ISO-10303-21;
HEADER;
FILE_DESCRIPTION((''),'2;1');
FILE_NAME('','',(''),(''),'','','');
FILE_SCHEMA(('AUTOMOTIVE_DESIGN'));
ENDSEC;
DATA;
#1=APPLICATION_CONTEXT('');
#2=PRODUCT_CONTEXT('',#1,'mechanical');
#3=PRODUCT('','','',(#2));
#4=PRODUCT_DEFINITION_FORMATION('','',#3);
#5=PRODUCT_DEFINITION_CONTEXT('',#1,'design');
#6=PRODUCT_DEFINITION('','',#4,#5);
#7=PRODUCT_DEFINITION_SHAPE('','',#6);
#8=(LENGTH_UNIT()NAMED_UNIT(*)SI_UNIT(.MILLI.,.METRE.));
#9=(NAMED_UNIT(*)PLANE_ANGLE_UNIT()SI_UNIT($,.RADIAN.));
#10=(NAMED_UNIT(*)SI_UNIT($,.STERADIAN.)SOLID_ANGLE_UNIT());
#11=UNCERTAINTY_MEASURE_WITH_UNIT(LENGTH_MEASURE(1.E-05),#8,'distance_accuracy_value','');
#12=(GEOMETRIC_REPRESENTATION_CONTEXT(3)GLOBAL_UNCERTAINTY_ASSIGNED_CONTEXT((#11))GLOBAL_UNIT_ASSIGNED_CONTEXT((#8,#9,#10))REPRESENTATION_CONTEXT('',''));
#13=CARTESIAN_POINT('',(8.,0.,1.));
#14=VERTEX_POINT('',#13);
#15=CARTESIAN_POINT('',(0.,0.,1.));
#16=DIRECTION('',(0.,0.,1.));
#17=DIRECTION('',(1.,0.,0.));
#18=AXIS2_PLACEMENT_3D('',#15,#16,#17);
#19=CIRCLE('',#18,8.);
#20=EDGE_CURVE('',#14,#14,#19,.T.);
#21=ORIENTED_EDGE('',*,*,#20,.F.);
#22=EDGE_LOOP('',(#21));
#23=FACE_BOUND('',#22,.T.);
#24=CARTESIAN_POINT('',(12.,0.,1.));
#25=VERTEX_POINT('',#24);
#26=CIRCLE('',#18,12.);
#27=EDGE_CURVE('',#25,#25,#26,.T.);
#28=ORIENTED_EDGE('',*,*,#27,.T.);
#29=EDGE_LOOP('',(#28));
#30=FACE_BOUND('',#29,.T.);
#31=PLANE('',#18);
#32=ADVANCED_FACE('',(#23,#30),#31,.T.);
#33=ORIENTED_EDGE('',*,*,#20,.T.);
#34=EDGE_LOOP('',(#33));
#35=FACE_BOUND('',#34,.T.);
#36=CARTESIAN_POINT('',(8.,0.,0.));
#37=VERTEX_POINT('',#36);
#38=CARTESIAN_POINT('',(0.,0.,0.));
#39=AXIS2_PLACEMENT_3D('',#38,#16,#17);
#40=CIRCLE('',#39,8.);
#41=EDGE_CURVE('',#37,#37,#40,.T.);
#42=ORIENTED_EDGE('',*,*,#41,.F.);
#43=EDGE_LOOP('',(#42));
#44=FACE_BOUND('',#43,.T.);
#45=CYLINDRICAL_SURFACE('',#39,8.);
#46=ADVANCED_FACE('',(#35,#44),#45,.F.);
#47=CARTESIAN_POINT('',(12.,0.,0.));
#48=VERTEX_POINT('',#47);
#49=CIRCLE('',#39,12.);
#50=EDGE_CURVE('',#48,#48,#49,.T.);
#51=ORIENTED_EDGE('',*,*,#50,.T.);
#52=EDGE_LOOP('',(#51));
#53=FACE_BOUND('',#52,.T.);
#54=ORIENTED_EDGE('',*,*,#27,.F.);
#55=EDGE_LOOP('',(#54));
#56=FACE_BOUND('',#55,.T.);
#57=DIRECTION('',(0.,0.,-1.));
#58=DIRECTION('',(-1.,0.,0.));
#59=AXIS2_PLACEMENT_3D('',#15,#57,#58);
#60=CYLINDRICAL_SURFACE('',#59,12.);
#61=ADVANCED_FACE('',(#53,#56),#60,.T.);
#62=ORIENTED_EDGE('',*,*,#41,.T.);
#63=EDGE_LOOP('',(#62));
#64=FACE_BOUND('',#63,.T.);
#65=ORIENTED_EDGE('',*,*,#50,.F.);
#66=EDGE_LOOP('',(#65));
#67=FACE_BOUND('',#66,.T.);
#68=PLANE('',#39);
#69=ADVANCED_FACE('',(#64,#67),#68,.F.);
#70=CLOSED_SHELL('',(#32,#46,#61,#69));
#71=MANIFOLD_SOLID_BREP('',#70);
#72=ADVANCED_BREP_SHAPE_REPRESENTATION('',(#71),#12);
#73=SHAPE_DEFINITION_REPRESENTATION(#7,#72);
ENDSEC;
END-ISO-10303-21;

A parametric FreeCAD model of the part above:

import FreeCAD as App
import Part
import Sketcher

V = App.Vector

doc = App.newDocument("Part")
params = doc.addObject("Spreadsheet::Sheet", "Params")
for row, (alias, value) in enumerate([
    ("sketch1_diameter", "24 mm"),
    ("pad1_length", "1 mm"),
    ("sketch2_diameter", "16 mm"),
    ("pocket1_length", "1 mm"),
], start=1):
    params.set(f"A{row}", alias)
    params.set(f"B{row}", "=" + value)
    params.setAlias(f"B{row}", alias)

body = doc.addObject("PartDesign::Body", "Body")

sketch1 = body.newObject("Sketcher::SketchObject", "Sketch")
sketch1.AttachmentSupport = (doc.getObject("XY_Plane"), [""])
sketch1.MapMode = "FlatFace"
sketch1.addGeometry(Part.Circle(V(0, 0, 0), V(0, 0, 1), 12), False)
sketch1.addConstraint([
    Sketcher.Constraint("Coincident", 0, 3, -1, 1),
    Sketcher.Constraint("Diameter", 0, 24.0),
])
sketch1.setExpression("Constraints[1]", "Params.sketch1_diameter")
pad1 = body.newObject("PartDesign::Pad", "Pad")
pad1.Profile = sketch1
pad1.setExpression("Length", "Params.pad1_length")

sketch2 = body.newObject("Sketcher::SketchObject", "Sketch001")
sketch2.AttachmentSupport = (doc.getObject("XY_Plane"), [""])
sketch2.MapMode = "FlatFace"
sketch2.AttachmentOffset = App.Placement(V(0, 0, 1), App.Rotation())
sketch2.addGeometry(Part.Circle(V(0, 0, 0), V(0, 0, 1), 8), False)
sketch2.addConstraint([
    Sketcher.Constraint("Coincident", 0, 3, -1, 1),
    Sketcher.Constraint("Diameter", 0, 16.0),
])
sketch2.setExpression("Constraints[1]", "Params.sketch2_diameter")
pocket1 = body.newObject("PartDesign::Pocket", "Pocket")
pocket1.Profile = sketch2
pocket1.setExpression("Length", "Params.pocket1_length")

doc.recompute()
